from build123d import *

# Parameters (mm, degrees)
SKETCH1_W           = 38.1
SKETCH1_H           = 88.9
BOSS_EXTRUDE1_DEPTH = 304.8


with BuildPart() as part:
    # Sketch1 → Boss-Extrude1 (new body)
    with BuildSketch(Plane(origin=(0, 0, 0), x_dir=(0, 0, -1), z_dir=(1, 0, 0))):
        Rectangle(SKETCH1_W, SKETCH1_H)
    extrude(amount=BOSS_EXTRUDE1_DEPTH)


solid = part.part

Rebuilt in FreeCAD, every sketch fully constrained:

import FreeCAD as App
import Part
import Sketcher
from FreeCAD import Vector
Q = App.Units.Quantity


def add_polygon(sketch, points):
    """Adds a closed chain of lines whose ends are joined by coincident constraints."""
    first, n = sketch.GeometryCount, len(points)
    for a, b in zip(points, points[1:] + points[:1]):
        sketch.addGeometry(Part.LineSegment(App.Vector(*a, 0), App.Vector(*b, 0)), False)
    for i in range(n):
        sketch.addConstraint(Sketcher.Constraint("Coincident", first + i, 2, first + (i + 1) % n, 1))

doc = App.newDocument("Part")
body = doc.addObject("PartDesign::Body", "Body")

sketch1 = body.newObject("Sketcher::SketchObject", "Sketch")
sketch1.AttachmentSupport = (doc.getObject("YZ_Plane"), [""])
sketch1.MapMode = "FlatFace"
add_polygon(sketch1, [(44, 19), (-44, 19), (-44, -19), (44, -19)])
sketch1.addConstraint([
    Sketcher.Constraint("Horizontal", 0),
    Sketcher.Constraint("Vertical", 1),
    Sketcher.Constraint("Horizontal", 2),
    Sketcher.Constraint("Vertical", 3),
    Sketcher.Constraint("Symmetric", 0, 2, 2, 2, -1, 1),
    Sketcher.Constraint("DistanceX", 0, 2, 0, 1, Q("3.5 in")),
    Sketcher.Constraint("DistanceY", 1, 2, 1, 1, Q("1.5 in")),
])
pad1 = body.newObject("PartDesign::Pad", "Pad")
pad1.Profile = sketch1
pad1.Length = Q("12 in")

doc.recompute()
